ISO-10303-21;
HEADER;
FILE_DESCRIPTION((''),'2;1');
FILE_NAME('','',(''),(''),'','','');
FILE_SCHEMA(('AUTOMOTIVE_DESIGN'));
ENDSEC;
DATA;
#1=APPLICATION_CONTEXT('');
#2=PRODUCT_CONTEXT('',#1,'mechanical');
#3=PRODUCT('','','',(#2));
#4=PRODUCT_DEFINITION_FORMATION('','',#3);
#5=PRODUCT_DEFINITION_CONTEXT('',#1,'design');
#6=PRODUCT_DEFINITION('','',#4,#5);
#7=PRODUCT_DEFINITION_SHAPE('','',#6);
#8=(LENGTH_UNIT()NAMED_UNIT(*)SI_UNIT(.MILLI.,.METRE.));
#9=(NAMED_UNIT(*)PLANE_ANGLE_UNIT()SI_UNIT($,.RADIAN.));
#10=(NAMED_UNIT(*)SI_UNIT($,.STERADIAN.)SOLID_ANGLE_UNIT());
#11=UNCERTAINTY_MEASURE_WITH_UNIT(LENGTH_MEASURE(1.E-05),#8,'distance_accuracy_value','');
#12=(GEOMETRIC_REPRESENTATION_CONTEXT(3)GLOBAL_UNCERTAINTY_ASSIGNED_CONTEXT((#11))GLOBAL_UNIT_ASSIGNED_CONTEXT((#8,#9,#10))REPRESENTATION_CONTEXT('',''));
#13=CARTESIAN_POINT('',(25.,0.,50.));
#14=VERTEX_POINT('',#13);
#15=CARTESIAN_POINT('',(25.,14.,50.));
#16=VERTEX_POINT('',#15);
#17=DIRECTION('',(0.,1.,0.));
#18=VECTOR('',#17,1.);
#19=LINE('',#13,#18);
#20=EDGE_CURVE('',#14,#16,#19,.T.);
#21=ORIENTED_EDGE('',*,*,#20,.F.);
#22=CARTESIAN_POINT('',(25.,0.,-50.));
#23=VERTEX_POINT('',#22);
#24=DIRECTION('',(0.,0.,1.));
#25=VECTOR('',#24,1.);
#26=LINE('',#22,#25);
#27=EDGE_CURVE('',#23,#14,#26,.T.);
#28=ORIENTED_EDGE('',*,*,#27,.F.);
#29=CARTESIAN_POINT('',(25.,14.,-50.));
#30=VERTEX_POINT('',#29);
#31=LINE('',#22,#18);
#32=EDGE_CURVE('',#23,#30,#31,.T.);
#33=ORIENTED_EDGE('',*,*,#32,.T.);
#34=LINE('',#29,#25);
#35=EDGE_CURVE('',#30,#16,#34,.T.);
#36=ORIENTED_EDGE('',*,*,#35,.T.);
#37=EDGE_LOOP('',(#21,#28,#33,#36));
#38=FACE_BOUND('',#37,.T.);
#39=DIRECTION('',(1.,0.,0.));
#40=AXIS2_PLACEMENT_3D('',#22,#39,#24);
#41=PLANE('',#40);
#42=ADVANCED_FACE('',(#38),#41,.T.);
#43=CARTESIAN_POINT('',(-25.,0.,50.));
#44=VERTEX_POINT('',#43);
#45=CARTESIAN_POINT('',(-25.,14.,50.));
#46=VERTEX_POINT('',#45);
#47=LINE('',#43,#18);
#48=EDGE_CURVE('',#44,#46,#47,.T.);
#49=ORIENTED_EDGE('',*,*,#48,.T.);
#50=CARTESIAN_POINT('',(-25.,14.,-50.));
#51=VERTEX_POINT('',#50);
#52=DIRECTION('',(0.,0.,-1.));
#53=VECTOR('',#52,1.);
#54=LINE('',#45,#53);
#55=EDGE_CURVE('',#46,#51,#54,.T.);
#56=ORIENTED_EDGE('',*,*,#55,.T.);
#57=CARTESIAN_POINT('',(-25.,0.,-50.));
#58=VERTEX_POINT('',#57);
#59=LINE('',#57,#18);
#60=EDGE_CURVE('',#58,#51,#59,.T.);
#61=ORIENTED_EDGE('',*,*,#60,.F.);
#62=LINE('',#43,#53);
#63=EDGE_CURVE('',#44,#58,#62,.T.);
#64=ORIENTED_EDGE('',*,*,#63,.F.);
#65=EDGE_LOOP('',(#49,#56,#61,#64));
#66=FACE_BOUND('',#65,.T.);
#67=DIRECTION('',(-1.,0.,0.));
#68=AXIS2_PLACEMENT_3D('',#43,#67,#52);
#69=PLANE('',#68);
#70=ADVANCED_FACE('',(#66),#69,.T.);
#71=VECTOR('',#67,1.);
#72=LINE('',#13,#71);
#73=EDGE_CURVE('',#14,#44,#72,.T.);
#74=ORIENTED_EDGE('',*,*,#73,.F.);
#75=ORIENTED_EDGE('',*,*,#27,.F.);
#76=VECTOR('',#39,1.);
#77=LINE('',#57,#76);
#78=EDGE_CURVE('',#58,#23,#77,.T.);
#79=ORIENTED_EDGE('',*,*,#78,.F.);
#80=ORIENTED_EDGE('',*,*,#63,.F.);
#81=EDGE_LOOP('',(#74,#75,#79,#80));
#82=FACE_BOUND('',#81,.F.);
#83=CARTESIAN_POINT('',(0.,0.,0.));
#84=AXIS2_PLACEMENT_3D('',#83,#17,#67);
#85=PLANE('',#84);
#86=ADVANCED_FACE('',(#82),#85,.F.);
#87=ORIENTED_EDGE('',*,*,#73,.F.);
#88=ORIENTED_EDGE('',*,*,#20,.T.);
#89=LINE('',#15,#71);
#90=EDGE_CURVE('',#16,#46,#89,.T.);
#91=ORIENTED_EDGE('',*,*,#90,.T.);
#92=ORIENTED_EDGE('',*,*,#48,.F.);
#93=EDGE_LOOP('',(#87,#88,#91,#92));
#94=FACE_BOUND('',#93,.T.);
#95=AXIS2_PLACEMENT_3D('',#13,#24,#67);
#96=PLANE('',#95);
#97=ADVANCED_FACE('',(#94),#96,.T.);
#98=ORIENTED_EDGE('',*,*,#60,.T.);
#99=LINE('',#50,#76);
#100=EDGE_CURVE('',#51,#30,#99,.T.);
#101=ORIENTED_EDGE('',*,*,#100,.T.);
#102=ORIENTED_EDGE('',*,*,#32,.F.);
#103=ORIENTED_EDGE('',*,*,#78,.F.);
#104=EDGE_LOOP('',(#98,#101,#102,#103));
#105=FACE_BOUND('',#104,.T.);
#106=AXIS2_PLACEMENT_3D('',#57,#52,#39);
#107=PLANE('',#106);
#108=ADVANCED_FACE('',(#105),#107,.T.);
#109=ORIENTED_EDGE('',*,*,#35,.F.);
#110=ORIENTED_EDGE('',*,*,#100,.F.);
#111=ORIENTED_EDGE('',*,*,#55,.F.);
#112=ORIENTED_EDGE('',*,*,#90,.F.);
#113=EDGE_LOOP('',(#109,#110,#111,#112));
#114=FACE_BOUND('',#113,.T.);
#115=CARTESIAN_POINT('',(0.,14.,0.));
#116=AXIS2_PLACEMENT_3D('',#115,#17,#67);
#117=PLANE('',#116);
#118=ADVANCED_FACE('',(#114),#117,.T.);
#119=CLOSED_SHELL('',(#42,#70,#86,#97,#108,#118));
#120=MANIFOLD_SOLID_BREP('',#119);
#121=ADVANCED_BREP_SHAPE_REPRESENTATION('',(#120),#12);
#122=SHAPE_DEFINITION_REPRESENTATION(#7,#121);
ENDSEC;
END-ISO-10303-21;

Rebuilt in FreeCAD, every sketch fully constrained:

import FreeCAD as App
import Part
import Sketcher

V = App.Vector


def add_polygon(sketch, points):
    """Adds a closed chain of lines whose ends are joined by coincident constraints."""
    first, n = sketch.GeometryCount, len(points)
    for a, b in zip(points, points[1:] + points[:1]):
        sketch.addGeometry(Part.LineSegment(App.Vector(*a, 0), App.Vector(*b, 0)), False)
    for i in range(n):
        sketch.addConstraint(Sketcher.Constraint("Coincident", first + i, 2, first + (i + 1) % n, 1))

doc = App.newDocument("Part")
body = doc.addObject("PartDesign::Body", "Body")

sketch1 = body.newObject("Sketcher::SketchObject", "Sketch")
sketch1.AttachmentSupport = (doc.getObject("XZ_Plane"), [""])
sketch1.MapMode = "FlatFace"
add_polygon(sketch1, [(-25, 50), (25, 50), (25, -50), (-25, -50)])
sketch1.addConstraint(Sketcher.Constraint("Horizontal", 0))
sketch1.addConstraint(Sketcher.Constraint("Vertical", 1))
sketch1.addConstraint(Sketcher.Constraint("Horizontal", 2))
sketch1.addConstraint(Sketcher.Constraint("Vertical", 3))
sketch1.addConstraint(Sketcher.Constraint("Symmetric", 0, 2, 2, 2, -1, 1))
sketch1.addConstraint(Sketcher.Constraint("DistanceX", 0, 1, 0, 2, 50.0))
sketch1.addConstraint(Sketcher.Constraint("DistanceY", 1, 2, 1, 1, 100.0))
pad1 = body.newObject("PartDesign::Pad", "Pad")
pad1.Profile = sketch1
pad1.Length = 14
pad1.Reversed = True

doc.recompute()
